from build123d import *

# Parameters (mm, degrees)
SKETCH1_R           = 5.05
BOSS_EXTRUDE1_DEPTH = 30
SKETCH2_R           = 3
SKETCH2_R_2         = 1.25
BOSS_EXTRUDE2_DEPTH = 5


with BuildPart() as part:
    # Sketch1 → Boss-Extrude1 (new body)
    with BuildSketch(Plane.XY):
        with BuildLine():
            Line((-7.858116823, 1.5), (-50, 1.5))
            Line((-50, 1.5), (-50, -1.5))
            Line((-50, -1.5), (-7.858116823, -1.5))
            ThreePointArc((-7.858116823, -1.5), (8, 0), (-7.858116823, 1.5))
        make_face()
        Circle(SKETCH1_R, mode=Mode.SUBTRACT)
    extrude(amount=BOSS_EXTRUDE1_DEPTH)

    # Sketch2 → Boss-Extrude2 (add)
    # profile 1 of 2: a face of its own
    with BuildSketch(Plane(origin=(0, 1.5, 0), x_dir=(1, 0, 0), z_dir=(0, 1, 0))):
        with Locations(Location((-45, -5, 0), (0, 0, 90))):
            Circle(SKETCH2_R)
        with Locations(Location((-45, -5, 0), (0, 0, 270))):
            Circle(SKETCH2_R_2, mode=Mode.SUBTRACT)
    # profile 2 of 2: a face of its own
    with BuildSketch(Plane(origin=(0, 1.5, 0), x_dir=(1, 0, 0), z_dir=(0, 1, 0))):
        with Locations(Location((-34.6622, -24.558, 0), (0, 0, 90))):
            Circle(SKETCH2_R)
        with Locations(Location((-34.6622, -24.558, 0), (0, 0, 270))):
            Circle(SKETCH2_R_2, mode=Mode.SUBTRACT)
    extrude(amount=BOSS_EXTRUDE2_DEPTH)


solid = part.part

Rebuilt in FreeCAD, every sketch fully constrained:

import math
import FreeCAD as App
import Part
import Sketcher
from FreeCAD import Vector
Q = App.Units.Quantity

doc = App.newDocument("Part")
body = doc.addObject("PartDesign::Body", "Body")

sketch1 = body.newObject("Sketcher::SketchObject", "Sketch")
sketch1.AttachmentSupport = (doc.getObject("XY_Plane"), [""])
sketch1.MapMode = "FlatFace"
sketch1.addGeometry([
    Part.LineSegment(Vector(-7.9, 1.5, 0), Vector(-50, 1.5, 0)),
    Part.LineSegment(Vector(-50, 1.5, 0), Vector(-50, -1.5, 0)),
    Part.LineSegment(Vector(-50, -1.5, 0), Vector(-7.9, -1.5, 0)),
    Part.ArcOfCircle(Part.Circle(Vector(0, 0, 0), Vector(0, 0, 1), 8), math.radians(-169), math.radians(169)),
    Part.Circle(Vector(0, 0, 0), Vector(0, 0, 1), 5),
], False)
sketch1.addConstraint([
    Sketcher.Constraint("Coincident", 0, 2, 1, 1),
    Sketcher.Constraint("Coincident", 1, 2, 2, 1),
    Sketcher.Constraint("Coincident", 2, 2, 3, 1),
    Sketcher.Constraint("Coincident", 3, 2, 0, 1),
    Sketcher.Constraint("Horizontal", 0),
    Sketcher.Constraint("Vertical", 1),
    Sketcher.Constraint("Horizontal", 2),
    Sketcher.Constraint("Coincident", 3, 3, -1, 1),
    Sketcher.Constraint("Coincident", 4, 3, -1, 1),
    Sketcher.Constraint("Vertical", 2, 2, 3, 2),
    Sketcher.Constraint("Radius", 3, Q("8 mm")),
    Sketcher.Constraint("Diameter", 4, Q("10.1 mm")),
    Sketcher.Constraint("DistanceY", 1, 2, 1, 1, Q("3 mm")),
    Sketcher.Constraint("DistanceX", 0, 2, -1, 1, Q("50 mm")),
])
pad1 = body.newObject("PartDesign::Pad", "Pad")
pad1.Profile = sketch1
pad1.Length = 30

sketch2 = body.newObject("Sketcher::SketchObject", "Sketch001")
sketch2.AttachmentSupport = (doc.getObject("XZ_Plane"), [""])
sketch2.MapMode = "FlatFace"
sketch2.AttachmentOffset = App.Placement(Vector(0, 0, -1.5), App.Rotation())
sketch2.addGeometry([
    Part.Circle(Vector(-45, 5, 0), Vector(0, 0, 1), 3),
    Part.Circle(Vector(-45, 5, 0), Vector(0, 0, 1), 1.2),
    Part.Circle(Vector(-34.7, 24.6, 0), Vector(0, 0, 1), 3),
    Part.Circle(Vector(-34.7, 24.6, 0), Vector(0, 0, 1), 1.2),
], False)
sketch2.addConstraint([
    Sketcher.Constraint("Coincident", 1, 3, 0, 3),
    Sketcher.Constraint("Coincident", 3, 3, 2, 3),
    Sketcher.Constraint("Equal", 0, 2),
    Sketcher.Constraint("Equal", 1, 3),
    Sketcher.Constraint("Diameter", 0, Q("6 mm")),
    Sketcher.Constraint("Diameter", 1, Q("2.5 mm")),
    Sketcher.Constraint("DistanceX", 0, 3, -1, 1, Q("45 mm")),
    Sketcher.Constraint("DistanceY", -1, 1, 0, 3, Q("5 mm")),
    Sketcher.Constraint("DistanceY", -1, 1, 2, 3, Q("24.558 mm")),
    Sketcher.Constraint("DistanceX", 2, 3, -1, 1, Q("34.6622 mm")),
])
pad2 = body.newObject("PartDesign::Pad", "Pad001")
pad2.Profile = sketch2
pad2.Length = 5
pad2.Reversed = True

doc.recompute()
